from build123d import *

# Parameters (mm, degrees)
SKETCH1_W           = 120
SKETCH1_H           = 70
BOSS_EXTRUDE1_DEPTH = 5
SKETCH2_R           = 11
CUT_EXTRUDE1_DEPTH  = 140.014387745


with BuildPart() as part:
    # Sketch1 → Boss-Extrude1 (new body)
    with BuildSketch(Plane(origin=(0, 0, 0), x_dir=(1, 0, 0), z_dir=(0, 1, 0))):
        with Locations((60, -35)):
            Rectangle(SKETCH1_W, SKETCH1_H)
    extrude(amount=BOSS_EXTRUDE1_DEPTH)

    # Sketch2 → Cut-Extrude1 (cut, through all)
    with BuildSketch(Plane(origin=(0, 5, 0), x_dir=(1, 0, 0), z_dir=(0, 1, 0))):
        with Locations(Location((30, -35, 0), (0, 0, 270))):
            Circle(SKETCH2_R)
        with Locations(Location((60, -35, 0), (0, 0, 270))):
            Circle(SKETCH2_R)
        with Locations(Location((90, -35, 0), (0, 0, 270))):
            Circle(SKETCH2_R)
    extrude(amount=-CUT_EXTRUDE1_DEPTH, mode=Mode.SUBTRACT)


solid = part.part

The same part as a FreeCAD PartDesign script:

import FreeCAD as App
import Part
import Sketcher


def add_polygon(sketch, points):
    """Adds a closed chain of lines whose ends are joined by coincident constraints."""
    first, n = sketch.GeometryCount, len(points)
    for a, b in zip(points, points[1:] + points[:1]):
        sketch.addGeometry(Part.LineSegment(App.Vector(*a, 0), App.Vector(*b, 0)), False)
    for i in range(n):
        sketch.addConstraint(Sketcher.Constraint("Coincident", first + i, 2, first + (i + 1) % n, 1))

doc = App.newDocument("Part")
params = doc.addObject("Spreadsheet::Sheet", "Params")
for row, (alias, value) in enumerate([
    ("sketch1_width", "120 mm"),
    ("sketch1_height", "70 mm"),
    ("pad1_length", "5 mm"),
    ("sketch2_diameter", "22 mm"),
], start=1):
    params.set(f"A{row}", alias)
    params.set(f"B{row}", "=" + value)
    params.setAlias(f"B{row}", alias)

body = doc.addObject("PartDesign::Body", "Body")

# Sketch on XZ plane
sketch1 = body.newObject("Sketcher::SketchObject", "Sketch")
sketch1.AttachmentSupport = (doc.getObject("XZ_Plane"), [""])
sketch1.MapMode = "FlatFace"
add_polygon(sketch1, [(0, 0), (0, 70), (120, 70), (120, 0)])  # lines 0-3
sketch1.addConstraint([
    Sketcher.Constraint("Vertical", 0),
    Sketcher.Constraint("Horizontal", 1),
    Sketcher.Constraint("Vertical", 2),
    Sketcher.Constraint("Horizontal", 3),
    Sketcher.Constraint("Coincident", 3, 2, -1, 1),
    Sketcher.Constraint("DistanceX", 1, 1, 1, 2, 120.0),
    Sketcher.Constraint("DistanceY", 0, 1, 0, 2, 70.0),
])
sketch1.setExpression("Constraints[9]", "Params.sketch1_width")
sketch1.setExpression("Constraints[10]", "Params.sketch1_height")
pad1 = body.newObject("PartDesign::Pad", "Pad")
pad1.Profile = sketch1
pad1.setExpression("Length", "Params.pad1_length")
pad1.Reversed = True

# Sketch on XZ plane
sketch2 = body.newObject("Sketcher::SketchObject", "Sketch001")
sketch2.AttachmentSupport = (doc.getObject("XZ_Plane"), [""])
sketch2.MapMode = "FlatFace"
sketch2.AttachmentOffset = App.Placement(App.Vector(0, 0, -5), App.Rotation())
sketch2.addGeometry([
    Part.Circle(App.Vector(30, 35, 0), App.Vector(0, 0, 1), 11),
    Part.Circle(App.Vector(60, 35, 0), App.Vector(0, 0, 1), 11),
    Part.Circle(App.Vector(90, 35, 0), App.Vector(0, 0, 1), 11),
], False)
sketch2.addConstraint([
    Sketcher.Constraint("Equal", 0, 1),
    Sketcher.Constraint("Equal", 1, 2),
    Sketcher.Constraint("Horizontal", 0, 3, 1, 3),
    Sketcher.Constraint("Horizontal", 1, 3, 2, 3),
    Sketcher.Constraint("Diameter", 0, 22.0),
    Sketcher.Constraint("DistanceX", -1, 1, 0, 3, 30.0),
    Sketcher.Constraint("DistanceY", -1, 1, 0, 3, 35.0),
    Sketcher.Constraint("DistanceX", -1, 1, 1, 3, 60.0),
    Sketcher.Constraint("DistanceX", -1, 1, 2, 3, 90.0),
])
sketch2.setExpression("Constraints[4]", "Params.sketch2_diameter")
pocket1 = body.newObject("PartDesign::Pocket", "Pocket")
pocket1.Profile = sketch2
pocket1.Type = "ThroughAll"
pocket1.Reversed = True

doc.recompute()
